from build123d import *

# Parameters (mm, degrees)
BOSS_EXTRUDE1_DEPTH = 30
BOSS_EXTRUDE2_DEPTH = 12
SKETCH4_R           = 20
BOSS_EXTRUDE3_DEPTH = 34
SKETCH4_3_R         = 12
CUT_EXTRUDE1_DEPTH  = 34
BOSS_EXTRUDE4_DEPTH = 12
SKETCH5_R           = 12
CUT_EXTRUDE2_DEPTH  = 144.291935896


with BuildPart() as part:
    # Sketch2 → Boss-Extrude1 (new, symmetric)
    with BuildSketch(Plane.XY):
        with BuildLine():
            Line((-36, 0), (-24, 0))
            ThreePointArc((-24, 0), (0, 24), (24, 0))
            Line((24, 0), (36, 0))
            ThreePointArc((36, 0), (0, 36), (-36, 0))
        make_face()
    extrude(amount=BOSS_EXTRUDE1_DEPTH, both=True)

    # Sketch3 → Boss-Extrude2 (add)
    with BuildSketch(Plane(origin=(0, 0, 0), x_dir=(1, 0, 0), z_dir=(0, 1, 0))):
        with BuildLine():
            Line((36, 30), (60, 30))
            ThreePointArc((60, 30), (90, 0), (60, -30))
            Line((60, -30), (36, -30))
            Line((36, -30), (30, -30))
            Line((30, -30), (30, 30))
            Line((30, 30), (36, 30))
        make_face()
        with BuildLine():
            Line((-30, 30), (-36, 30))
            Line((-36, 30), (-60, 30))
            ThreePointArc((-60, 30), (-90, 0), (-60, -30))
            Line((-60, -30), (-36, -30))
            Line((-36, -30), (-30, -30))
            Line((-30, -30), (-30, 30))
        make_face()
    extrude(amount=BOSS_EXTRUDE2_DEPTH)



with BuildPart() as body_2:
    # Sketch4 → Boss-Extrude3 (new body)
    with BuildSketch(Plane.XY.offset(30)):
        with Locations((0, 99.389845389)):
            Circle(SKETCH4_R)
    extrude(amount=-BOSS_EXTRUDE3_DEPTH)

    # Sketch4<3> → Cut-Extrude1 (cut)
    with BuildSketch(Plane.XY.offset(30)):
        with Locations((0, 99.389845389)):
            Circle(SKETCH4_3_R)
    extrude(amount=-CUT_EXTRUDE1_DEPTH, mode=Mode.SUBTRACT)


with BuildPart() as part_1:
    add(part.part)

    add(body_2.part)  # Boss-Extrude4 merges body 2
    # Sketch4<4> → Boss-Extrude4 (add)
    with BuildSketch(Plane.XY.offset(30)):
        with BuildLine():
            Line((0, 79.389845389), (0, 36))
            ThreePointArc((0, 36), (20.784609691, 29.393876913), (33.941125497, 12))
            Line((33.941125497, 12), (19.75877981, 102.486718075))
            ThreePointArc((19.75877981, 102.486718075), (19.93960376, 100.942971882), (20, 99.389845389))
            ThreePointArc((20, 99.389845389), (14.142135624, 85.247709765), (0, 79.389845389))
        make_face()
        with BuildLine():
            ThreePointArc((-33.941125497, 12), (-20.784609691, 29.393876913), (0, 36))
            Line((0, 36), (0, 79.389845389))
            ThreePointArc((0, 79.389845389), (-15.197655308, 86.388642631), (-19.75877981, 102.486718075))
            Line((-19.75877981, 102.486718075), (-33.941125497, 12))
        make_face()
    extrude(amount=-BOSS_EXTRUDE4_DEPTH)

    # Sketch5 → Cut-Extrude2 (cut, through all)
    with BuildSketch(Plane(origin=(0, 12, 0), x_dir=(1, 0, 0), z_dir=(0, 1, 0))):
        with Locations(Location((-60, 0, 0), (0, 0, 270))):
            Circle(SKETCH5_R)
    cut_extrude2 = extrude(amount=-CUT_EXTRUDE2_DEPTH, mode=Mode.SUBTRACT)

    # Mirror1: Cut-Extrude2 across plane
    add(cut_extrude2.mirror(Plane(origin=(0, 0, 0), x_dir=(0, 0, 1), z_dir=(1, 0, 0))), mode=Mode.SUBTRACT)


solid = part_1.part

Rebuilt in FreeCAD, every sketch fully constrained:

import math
import FreeCAD as App
import Part
import Sketcher
from FreeCAD import Vector
Q = App.Units.Quantity

doc = App.newDocument("Part")
body = doc.addObject("PartDesign::Body", "Body")

sketch1 = body.newObject("Sketcher::SketchObject", "Sketch")
sketch1.AttachmentSupport = (doc.getObject("XY_Plane"), [""])
sketch1.MapMode = "FlatFace"
sketch1.addGeometry([
    Part.LineSegment(Vector(-36, 0, 0), Vector(-24, 0, 0)),
    Part.ArcOfCircle(Part.Circle(Vector(0, 0, 0), Vector(0, 0, 1), 24), math.radians(0), math.radians(180)),
    Part.LineSegment(Vector(24, 0, 0), Vector(36, 0, 0)),
    Part.ArcOfCircle(Part.Circle(Vector(0, 0, 0), Vector(0, 0, 1), 36), math.radians(0), math.radians(180)),
], False)
sketch1.addConstraint([
    Sketcher.Constraint("Coincident", 0, 2, 1, 2),
    Sketcher.Constraint("Coincident", 1, 1, 2, 1),
    Sketcher.Constraint("Coincident", 2, 2, 3, 1),
    Sketcher.Constraint("Coincident", 3, 2, 0, 1),
    Sketcher.Constraint("Horizontal", 0),
    Sketcher.Constraint("Horizontal", 2),
    Sketcher.Constraint("Coincident", 1, 3, -1, 1),
    Sketcher.Constraint("Coincident", 3, 3, -1, 1),
    Sketcher.Constraint("PointOnObject", 0, 2, -1),
    Sketcher.Constraint("PointOnObject", 1, 1, -1),
    Sketcher.Constraint("Radius", 1, Q("24 mm")),
    Sketcher.Constraint("Radius", 3, Q("36 mm")),
])
pad1 = body.newObject("PartDesign::Pad", "Pad")
pad1.Profile = sketch1
pad1.Length = 60
pad1.Midplane = True

sketch2 = body.newObject("Sketcher::SketchObject", "Sketch001")
sketch2.AttachmentSupport = (doc.getObject("XZ_Plane"), [""])
sketch2.MapMode = "FlatFace"
sketch2.addGeometry([
    Part.ArcOfCircle(Part.Circle(Vector(60, 0, 0), Vector(0, 0, 1), 30), math.radians(-90), math.radians(90)),
    Part.LineSegment(Vector(60, -30, 0), Vector(30, -30, 0)),
    Part.LineSegment(Vector(30, -30, 0), Vector(30, 30, 0)),
    Part.LineSegment(Vector(30, 30, 0), Vector(60, 30, 0)),
    Part.LineSegment(Vector(-30, -30, 0), Vector(-60, -30, 0)),
    Part.ArcOfCircle(Part.Circle(Vector(-60, 0, 0), Vector(0, 0, 1), 30), math.radians(90), math.radians(270)),
    Part.LineSegment(Vector(-60, 30, 0), Vector(-30, 30, 0)),
    Part.LineSegment(Vector(-30, 30, 0), Vector(-30, -30, 0)),
], False)
sketch2.addConstraint([
    Sketcher.Constraint("Tangent", 0, 1, 1, 1),
    Sketcher.Constraint("Coincident", 1, 2, 2, 1),
    Sketcher.Constraint("Coincident", 2, 2, 3, 1),
    Sketcher.Constraint("Tangent", 3, 2, 0, 2),
    Sketcher.Constraint("Tangent", 4, 2, 5, 2),
    Sketcher.Constraint("Tangent", 5, 1, 6, 1),
    Sketcher.Constraint("Coincident", 6, 2, 7, 1),
    Sketcher.Constraint("Coincident", 7, 2, 4, 1),
    Sketcher.Constraint("Horizontal", 1),
    Sketcher.Constraint("Vertical", 2),
    Sketcher.Constraint("Horizontal", 3),
    Sketcher.Constraint("Horizontal", 4),
    Sketcher.Constraint("Horizontal", 6),
    Sketcher.Constraint("Vertical", 7),
    Sketcher.Constraint("Equal", 0, 5),
    Sketcher.Constraint("Symmetric", 0, 3, 5, 3, -1, 1),
    Sketcher.Constraint("Symmetric", 2, 2, 6, 2, -2),
    Sketcher.Constraint("Radius", 0, Q("30 mm")),
    Sketcher.Constraint("DistanceX", 1, 2, 1, 1, Q("30 mm")),
    Sketcher.Constraint("DistanceX", -1, 1, 0, 3, Q("60 mm")),
])
pad2 = body.newObject("PartDesign::Pad", "Pad001")
pad2.Profile = sketch2
pad2.Length = 12
pad2.Reversed = True
body2 = doc.addObject("PartDesign::Body", "Body001")

sketch3 = body2.newObject("Sketcher::SketchObject", "Sketch002")
sketch3.AttachmentSupport = (doc.getObject("XY_Plane001"), [""])
sketch3.MapMode = "FlatFace"
sketch3.AttachmentOffset = App.Placement(Vector(0, 0, 30), App.Rotation())
sketch3.addGeometry(Part.Circle(Vector(0, 99, 0), Vector(0, 0, 1), 20), False)
sketch3.addConstraint([
    Sketcher.Constraint("PointOnObject", 0, 3, -2),
    Sketcher.Constraint("Diameter", 0, Q("40 mm")),
    Sketcher.Constraint("DistanceY", -1, 1, 0, 3, Q("99.389845 mm")),
])
pad3 = body2.newObject("PartDesign::Pad", "Pad002")
pad3.Profile = sketch3
pad3.Length = 34
pad3.Reversed = True

sketch4 = body2.newObject("Sketcher::SketchObject", "Sketch003")
sketch4.AttachmentSupport = (doc.getObject("XY_Plane001"), [""])
sketch4.MapMode = "FlatFace"
sketch4.AttachmentOffset = App.Placement(Vector(0, 0, 30), App.Rotation())
sketch4.addGeometry(Part.Circle(Vector(0, 99, 0), Vector(0, 0, 1), 12), False)
sketch4.addConstraint([
    Sketcher.Constraint("PointOnObject", 0, 3, -2),
    Sketcher.Constraint("Diameter", 0, Q("24 mm")),
    Sketcher.Constraint("DistanceY", -1, 1, 0, 3, Q("99.389845 mm")),
])
pocket1 = body2.newObject("PartDesign::Pocket", "Pocket")
pocket1.Profile = sketch4
pocket1.Length = 34
body.AllowCompound = True
doc.recompute()

boolean = body.newObject("PartDesign::Boolean", "Boolean")
boolean.Type = "Fuse"
boolean.addObjects([body2])

sketch5 = body.newObject("Sketcher::SketchObject", "Sketch004")
sketch5.AttachmentSupport = (doc.getObject("XY_Plane"), [""])
sketch5.MapMode = "FlatFace"
sketch5.AttachmentOffset = App.Placement(Vector(0, 0, 30), App.Rotation())
sketch5.addGeometry([
    Part.ArcOfCircle(Part.Circle(Vector(0, 0, 0), Vector(0, 0, 1), 36), math.radians(19.471221), math.radians(90)),
    Part.LineSegment(Vector(33.941125, 12, 0), Vector(19.75878, 102.486718, 0)),
    Part.ArcOfCircle(Part.Circle(Vector(0, 99.389845, 0), Vector(0, 0, 1), 20), math.radians(0), math.radians(8.907728)),
    Part.ArcOfCircle(Part.Circle(Vector(0, 99.389845, 0), Vector(0, 0, 1), 20), math.radians(-90), math.radians(0)),
    Part.ArcOfCircle(Part.Circle(Vector(0, 99.389845, 0), Vector(0, 0, 1), 20), math.radians(171.092272), math.radians(270)),
    Part.LineSegment(Vector(-19.75878, 102.486718, 0), Vector(-33.941125, 12, 0)),
    Part.ArcOfCircle(Part.Circle(Vector(0, 0, 0), Vector(0, 0, 1), 36), math.radians(90), math.radians(160.528779)),
], False)
sketch5.addConstraint([
    Sketcher.Constraint("Coincident", 0, 1, 1, 1),
    Sketcher.Constraint("Coincident", 1, 2, 2, 2),
    Sketcher.Constraint("Coincident", 2, 1, 3, 2),
    Sketcher.Constraint("Coincident", 3, 1, 4, 2),
    Sketcher.Constraint("Coincident", 4, 1, 5, 1),
    Sketcher.Constraint("Coincident", 5, 2, 6, 2),
    Sketcher.Constraint("Coincident", 6, 1, 0, 2),
    Sketcher.Constraint("Coincident", 0, 3, -1, 1),
    Sketcher.Constraint("Coincident", 6, 3, -1, 1),
    Sketcher.Constraint("Coincident", 3, 3, 2, 3),
    Sketcher.Constraint("Coincident", 4, 3, 2, 3),
    Sketcher.Constraint("PointOnObject", 2, 3, -2),
    Sketcher.Constraint("PointOnObject", 3, 1, -2),
    Sketcher.Constraint("PointOnObject", 6, 1, -2),
    Sketcher.Constraint("Radius", 0, Q("36 mm")),
    Sketcher.Constraint("Radius", 2, Q("20 mm")),
    Sketcher.Constraint("DistanceY", -1, 1, 0, 1, Q("12 mm")),
    Sketcher.Constraint("DistanceY", -1, 1, 5, 2, Q("12 mm")),
    Sketcher.Constraint("DistanceY", 3, 1, 2, 1, Q("20 mm")),
    Sketcher.Constraint("DistanceX", -1, 1, 1, 2, Q("19.75878 mm")),
    Sketcher.Constraint("DistanceY", -1, 1, 1, 2, Q("102.486718 mm")),
    Sketcher.Constraint("DistanceX", 4, 1, -1, 1, Q("19.75878 mm")),
])
pad4 = body.newObject("PartDesign::Pad", "Pad003")
pad4.Profile = sketch5
pad4.Length = 12
pad4.Reversed = True

sketch6 = body.newObject("Sketcher::SketchObject", "Sketch005")
sketch6.AttachmentSupport = (doc.getObject("XZ_Plane"), [""])
sketch6.MapMode = "FlatFace"
sketch6.AttachmentOffset = App.Placement(Vector(0, 0, -12), App.Rotation())
sketch6.addGeometry(Part.Circle(Vector(-60, 0, 0), Vector(0, 0, 1), 12), False)
sketch6.addConstraint([
    Sketcher.Constraint("PointOnObject", 0, 3, -1),
    Sketcher.Constraint("Diameter", 0, Q("24 mm")),
    Sketcher.Constraint("DistanceX", 0, 3, -1, 1, Q("60 mm")),
])
pocket2 = body.newObject("PartDesign::Pocket", "Pocket001")
pocket2.Profile = sketch6
pocket2.Type = "ThroughAll"
pocket2.Reversed = True
doc.recompute()

mirrored = body.newObject("PartDesign::Mirrored", "Mirrored")
mirrored.Originals = [pocket2]
mirrored.MirrorPlane = (doc.getObject("YZ_Plane"), [""])
body.Tip = mirrored

doc.recompute()
